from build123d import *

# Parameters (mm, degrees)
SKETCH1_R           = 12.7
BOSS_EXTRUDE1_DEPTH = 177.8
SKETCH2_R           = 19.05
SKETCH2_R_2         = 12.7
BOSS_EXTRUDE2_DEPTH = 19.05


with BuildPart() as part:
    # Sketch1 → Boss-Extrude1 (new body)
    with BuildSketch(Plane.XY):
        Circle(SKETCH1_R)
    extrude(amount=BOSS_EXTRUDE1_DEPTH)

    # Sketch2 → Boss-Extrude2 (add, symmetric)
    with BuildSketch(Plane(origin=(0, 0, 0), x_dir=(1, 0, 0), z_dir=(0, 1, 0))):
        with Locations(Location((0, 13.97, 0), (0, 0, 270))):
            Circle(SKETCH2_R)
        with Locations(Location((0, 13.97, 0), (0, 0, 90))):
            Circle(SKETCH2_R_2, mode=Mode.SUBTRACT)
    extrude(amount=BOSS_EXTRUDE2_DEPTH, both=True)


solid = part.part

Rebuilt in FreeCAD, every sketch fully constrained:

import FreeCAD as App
import Part
import Sketcher

V = App.Vector
Q = App.Units.Quantity

doc = App.newDocument("Part")
body = doc.addObject("PartDesign::Body", "Body")

# Sketch on XY plane
sketch1 = body.newObject("Sketcher::SketchObject", "Sketch")
sketch1.AttachmentSupport = (doc.getObject("XY_Plane"), [""])
sketch1.MapMode = "FlatFace"
sketch1.addGeometry(Part.Circle(V(0, 0, 0), V(0, 0, 1), 13), False)
sketch1.addConstraint(Sketcher.Constraint("Coincident", 0, 3, -1, 1))
sketch1.addConstraint(Sketcher.Constraint("Diameter", 0, Q("1 in")))
pad1 = body.newObject("PartDesign::Pad", "Pad")
pad1.Profile = sketch1
pad1.Length = Q("7 in")

# Sketch on XZ plane
sketch2 = body.newObject("Sketcher::SketchObject", "Sketch001")
sketch2.AttachmentSupport = (doc.getObject("XZ_Plane"), [""])
sketch2.MapMode = "FlatFace"
sketch2.addGeometry(Part.Circle(V(0, -14, 0), V(0, 0, 1), 19), False)
sketch2.addGeometry(Part.Circle(V(0, -14, 0), V(0, 0, 1), 13), False)
sketch2.addConstraint(Sketcher.Constraint("Coincident", 1, 3, 0, 3))
sketch2.addConstraint(Sketcher.Constraint("PointOnObject", 0, 3, -2))
sketch2.addConstraint(Sketcher.Constraint("Diameter", 1, Q("1 in")))
sketch2.addConstraint(Sketcher.Constraint("Diameter", 0, Q("1.5 in")))
sketch2.addConstraint(Sketcher.Constraint("DistanceY", 0, 3, -1, 1, Q("0.55 in")))
pad2 = body.newObject("PartDesign::Pad", "Pad001")
pad2.Profile = sketch2
pad2.Length = Q("1.5 in")
pad2.Midplane = True

doc.recompute()
